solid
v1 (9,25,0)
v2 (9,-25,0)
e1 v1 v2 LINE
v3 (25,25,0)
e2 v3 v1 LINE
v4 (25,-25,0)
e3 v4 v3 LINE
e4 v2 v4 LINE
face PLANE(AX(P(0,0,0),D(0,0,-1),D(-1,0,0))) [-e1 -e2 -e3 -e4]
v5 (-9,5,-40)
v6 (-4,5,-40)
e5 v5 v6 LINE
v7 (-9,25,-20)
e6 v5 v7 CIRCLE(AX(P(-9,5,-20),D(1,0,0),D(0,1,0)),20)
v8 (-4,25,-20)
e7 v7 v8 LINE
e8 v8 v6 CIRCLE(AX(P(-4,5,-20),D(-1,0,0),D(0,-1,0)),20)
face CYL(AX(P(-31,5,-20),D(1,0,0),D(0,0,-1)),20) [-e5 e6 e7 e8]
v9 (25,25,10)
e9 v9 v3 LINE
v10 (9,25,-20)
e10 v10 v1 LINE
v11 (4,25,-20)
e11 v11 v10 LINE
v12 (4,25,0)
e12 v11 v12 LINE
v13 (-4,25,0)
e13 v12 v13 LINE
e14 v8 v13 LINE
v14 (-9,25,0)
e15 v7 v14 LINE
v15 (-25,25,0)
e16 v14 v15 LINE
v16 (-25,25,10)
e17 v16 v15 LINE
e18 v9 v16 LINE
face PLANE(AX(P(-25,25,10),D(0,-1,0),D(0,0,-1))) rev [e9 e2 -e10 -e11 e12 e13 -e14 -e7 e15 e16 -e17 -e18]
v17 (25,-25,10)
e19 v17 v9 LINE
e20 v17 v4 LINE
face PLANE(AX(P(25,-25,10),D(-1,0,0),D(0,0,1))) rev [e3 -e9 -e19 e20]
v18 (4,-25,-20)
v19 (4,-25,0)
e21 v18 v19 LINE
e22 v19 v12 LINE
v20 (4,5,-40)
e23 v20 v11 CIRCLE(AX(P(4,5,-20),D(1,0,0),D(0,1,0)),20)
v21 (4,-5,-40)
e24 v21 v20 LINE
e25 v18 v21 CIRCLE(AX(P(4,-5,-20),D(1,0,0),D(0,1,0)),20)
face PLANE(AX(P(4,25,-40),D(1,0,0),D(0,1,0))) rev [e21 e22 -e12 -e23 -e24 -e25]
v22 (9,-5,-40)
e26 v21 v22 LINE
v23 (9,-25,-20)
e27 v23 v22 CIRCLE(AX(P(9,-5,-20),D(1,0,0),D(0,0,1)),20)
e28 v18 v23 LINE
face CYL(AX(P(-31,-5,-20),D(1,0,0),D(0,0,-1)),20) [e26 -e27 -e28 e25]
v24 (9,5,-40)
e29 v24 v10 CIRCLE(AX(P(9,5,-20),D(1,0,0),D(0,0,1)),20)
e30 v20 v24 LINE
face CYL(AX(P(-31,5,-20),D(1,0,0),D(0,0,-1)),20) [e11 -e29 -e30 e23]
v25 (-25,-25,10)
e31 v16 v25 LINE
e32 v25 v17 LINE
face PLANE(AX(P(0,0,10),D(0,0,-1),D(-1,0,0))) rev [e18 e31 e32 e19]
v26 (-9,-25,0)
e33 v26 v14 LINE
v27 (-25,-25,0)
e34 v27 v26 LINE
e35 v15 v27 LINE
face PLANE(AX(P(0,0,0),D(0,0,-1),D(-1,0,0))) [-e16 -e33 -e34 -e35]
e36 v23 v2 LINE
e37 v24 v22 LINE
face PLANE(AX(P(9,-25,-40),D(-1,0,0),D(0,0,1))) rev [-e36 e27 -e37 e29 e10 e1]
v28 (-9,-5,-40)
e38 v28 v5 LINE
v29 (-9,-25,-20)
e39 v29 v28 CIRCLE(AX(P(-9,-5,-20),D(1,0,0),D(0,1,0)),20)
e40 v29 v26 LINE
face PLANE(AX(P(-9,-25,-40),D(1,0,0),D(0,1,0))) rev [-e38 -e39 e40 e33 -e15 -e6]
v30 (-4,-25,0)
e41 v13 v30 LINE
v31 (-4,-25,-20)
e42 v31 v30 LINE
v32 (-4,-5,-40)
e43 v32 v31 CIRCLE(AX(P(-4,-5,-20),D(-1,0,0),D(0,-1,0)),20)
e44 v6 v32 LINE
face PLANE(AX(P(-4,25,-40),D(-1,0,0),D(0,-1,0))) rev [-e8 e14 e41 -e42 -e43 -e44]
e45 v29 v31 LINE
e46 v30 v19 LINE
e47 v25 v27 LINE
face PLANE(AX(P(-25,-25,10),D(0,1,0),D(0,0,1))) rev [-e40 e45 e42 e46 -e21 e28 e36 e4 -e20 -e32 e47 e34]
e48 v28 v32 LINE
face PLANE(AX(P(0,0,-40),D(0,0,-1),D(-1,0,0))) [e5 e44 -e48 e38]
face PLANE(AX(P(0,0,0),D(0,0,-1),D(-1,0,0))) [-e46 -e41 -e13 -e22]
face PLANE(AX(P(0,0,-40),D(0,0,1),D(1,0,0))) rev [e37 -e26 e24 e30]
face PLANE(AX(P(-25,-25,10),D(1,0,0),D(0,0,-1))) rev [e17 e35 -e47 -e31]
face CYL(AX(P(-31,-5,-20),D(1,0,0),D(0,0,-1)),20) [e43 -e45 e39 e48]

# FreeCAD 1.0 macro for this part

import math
import FreeCAD as App
import Part
import Sketcher

V = App.Vector
Q = App.Units.Quantity

doc = App.newDocument("Part")
params = doc.addObject("Spreadsheet::Sheet", "Params")
for row, (alias, value) in enumerate([
    ("sketch1_width", "50 mm"),
    ("pad1_length", "10 mm"),
    ("sketch2_width", "5 mm"),
    ("sketch2_height", "50 mm"),
    ("pad2_length", "40 mm"),
    ("sketch3_radius", "20 mm"),
    ("sketch3_radius2", "30 mm"),
    ("pocket1_length", "40 mm"),
], start=1):
    params.set(f"A{row}", alias)
    params.set(f"B{row}", "=" + value)
    params.setAlias(f"B{row}", alias)

body = doc.addObject("PartDesign::Body", "Body")

# Sketch on XY plane
sketch1 = body.newObject("Sketcher::SketchObject", "Sketch")
sketch1.AttachmentSupport = (doc.getObject("XY_Plane"), [""])
sketch1.MapMode = "FlatFace"
sketch1.addGeometry([
    Part.LineSegment(V(-25, 25, 0), V(-25, -25, 0)),
    Part.LineSegment(V(-25, -25, 0), V(25, -25, 0)),
    Part.LineSegment(V(25, -25, 0), V(25, 25, 0)),
    Part.LineSegment(V(25, 25, 0), V(-25, 25, 0)),
], False)
sketch1.addConstraint([
    Sketcher.Constraint("Coincident", 0, 2, 1, 1),
    Sketcher.Constraint("Coincident", 1, 2, 2, 1),
    Sketcher.Constraint("Coincident", 2, 2, 3, 1),
    Sketcher.Constraint("Coincident", 3, 2, 0, 1),
    Sketcher.Constraint("Vertical", 0),
    Sketcher.Constraint("Horizontal", 1),
    Sketcher.Constraint("Vertical", 2),
    Sketcher.Constraint("Horizontal", 3),
    Sketcher.Constraint("Symmetric", 0, 2, 2, 2, -1, 1),
    Sketcher.Constraint("Equal", 3, 0),
    Sketcher.Constraint("DistanceX", 1, 1, 1, 2, Q("50 mm")),
])
sketch1.setExpression("Constraints[10]", "Params.sketch1_width")
pad1 = body.newObject("PartDesign::Pad", "Pad")
pad1.Profile = sketch1
pad1.setExpression("Length", "Params.pad1_length")

# Sketch on XY plane
sketch2 = body.newObject("Sketcher::SketchObject", "Sketch001")
sketch2.AttachmentSupport = (doc.getObject("XY_Plane"), [""])
sketch2.MapMode = "FlatFace"
sketch2.addGeometry([
    Part.LineSegment(V(9, 25, 0), V(9, -25, 0)),  # 0
    Part.LineSegment(V(9, -25, 0), V(4, -25, 0)),  # 1
    Part.LineSegment(V(4, -25, 0), V(4, 25, 0)),  # 2
    Part.LineSegment(V(4, 25, 0), V(9, 25, 0)),  # 3
    Part.LineSegment(V(-4, 25, 0), V(-4, -25, 0)),  # 4
    Part.LineSegment(V(-4, -25, 0), V(-9, -25, 0)),  # 5
    Part.LineSegment(V(-9, -25, 0), V(-9, 25, 0)),  # 6
    Part.LineSegment(V(-9, 25, 0), V(-4, 25, 0)),  # 7
], False)
sketch2.addConstraint([
    Sketcher.Constraint("Coincident", 0, 2, 1, 1),
    Sketcher.Constraint("Coincident", 1, 2, 2, 1),
    Sketcher.Constraint("Coincident", 2, 2, 3, 1),
    Sketcher.Constraint("Coincident", 3, 2, 0, 1),
    Sketcher.Constraint("Coincident", 4, 2, 5, 1),
    Sketcher.Constraint("Coincident", 5, 2, 6, 1),
    Sketcher.Constraint("Coincident", 6, 2, 7, 1),
    Sketcher.Constraint("Coincident", 7, 2, 4, 1),
    Sketcher.Constraint("Vertical", 0),
    Sketcher.Constraint("Horizontal", 1),
    Sketcher.Constraint("Vertical", 2),
    Sketcher.Constraint("Horizontal", 3),
    Sketcher.Constraint("Vertical", 4),
    Sketcher.Constraint("Horizontal", 5),
    Sketcher.Constraint("Vertical", 6),
    Sketcher.Constraint("Horizontal", 7),
    Sketcher.Constraint("Symmetric", 2, 2, 4, 2, -1, 1),
    Sketcher.Constraint("Symmetric", 0, 2, 6, 2, -1, 1),
    Sketcher.Constraint("Horizontal", 1, 2, 4, 2),
    Sketcher.Constraint("DistanceX", 1, 2, 1, 1, Q("5 mm")),
    Sketcher.Constraint("DistanceY", 0, 2, 0, 1, Q("50 mm")),
    Sketcher.Constraint("DistanceX", -1, 1, 0, 2, Q("9 mm")),
])
sketch2.setExpression("Constraints[19]", "Params.sketch2_width")
sketch2.setExpression("Constraints[20]", "Params.sketch2_height")
pad2 = body.newObject("PartDesign::Pad", "Pad001")
pad2.Profile = sketch2
pad2.setExpression("Length", "Params.pad2_length")
pad2.Reversed = True

# Sketch on YZ plane
sketch3 = body.newObject("Sketcher::SketchObject", "Sketch002")
sketch3.AttachmentSupport = (doc.getObject("YZ_Plane"), [""])
sketch3.MapMode = "FlatFace"
sketch3.AttachmentOffset = App.Placement(V(0, 0, 9), App.Rotation())
sketch3.addGeometry([
    Part.ArcOfCircle(Part.Circle(V(-5, -20, 0), V(0, 0, 1), 20), math.radians(180), math.radians(270)),  # 0
    Part.LineSegment(V(-25, -20, 0), V(-35, -20, 0)),  # 1
    Part.ArcOfCircle(Part.Circle(V(-5, -20, 0), V(0, 0, 1), 30), math.radians(180), math.radians(270)),  # 2
    Part.LineSegment(V(-5, -50, 0), V(-5, -40, 0)),  # 3
    Part.ArcOfCircle(Part.Circle(V(5, -20, 0), V(0, 0, 1), 20), math.radians(-90), math.radians(0)),  # 4
    Part.LineSegment(V(5, -40, 0), V(5, -50, 0)),  # 5
    Part.ArcOfCircle(Part.Circle(V(5, -20, 0), V(0, 0, 1), 30), math.radians(-90), math.radians(0)),  # 6
    Part.LineSegment(V(35, -20, 0), V(25, -20, 0)),  # 7
], False)
sketch3.addConstraint([
    Sketcher.Constraint("Coincident", 0, 1, 1, 1),
    Sketcher.Constraint("Coincident", 1, 2, 2, 1),
    Sketcher.Constraint("Coincident", 2, 2, 3, 1),
    Sketcher.Constraint("Coincident", 3, 2, 0, 2),
    Sketcher.Constraint("Coincident", 4, 1, 5, 1),
    Sketcher.Constraint("Coincident", 5, 2, 6, 1),
    Sketcher.Constraint("Coincident", 6, 2, 7, 1),
    Sketcher.Constraint("Coincident", 7, 2, 4, 2),
    Sketcher.Constraint("Horizontal", 1),
    Sketcher.Constraint("Vertical", 3),
    Sketcher.Constraint("Vertical", 5),
    Sketcher.Constraint("Horizontal", 7),
    Sketcher.Constraint("Coincident", 2, 3, 0, 3),
    Sketcher.Constraint("Coincident", 6, 3, 4, 3),
    Sketcher.Constraint("Equal", 0, 4),
    Sketcher.Constraint("Equal", 2, 6),
    Sketcher.Constraint("Symmetric", 0, 3, 4, 3, -2),
    Sketcher.Constraint("Horizontal", 6, 3, 0, 1),
    Sketcher.Constraint("Horizontal", 1, 2, 6, 2),
    Sketcher.Constraint("Vertical", 0, 3, 2, 2),
    Sketcher.Constraint("Vertical", 6, 3, 4, 1),
    Sketcher.Constraint("Radius", 0, Q("20 mm")),
    Sketcher.Constraint("Radius", 2, Q("30 mm")),
    Sketcher.Constraint("DistanceX", 0, 3, -1, 1, Q("5 mm")),
    Sketcher.Constraint("DistanceY", 0, 3, -1, 1, Q("20 mm")),
])
sketch3.setExpression("Constraints[21]", "Params.sketch3_radius")
sketch3.setExpression("Constraints[22]", "Params.sketch3_radius2")
pocket1 = body.newObject("PartDesign::Pocket", "Pocket")
pocket1.Profile = sketch3
pocket1.setExpression("Length", "Params.pocket1_length")

doc.recompute()
